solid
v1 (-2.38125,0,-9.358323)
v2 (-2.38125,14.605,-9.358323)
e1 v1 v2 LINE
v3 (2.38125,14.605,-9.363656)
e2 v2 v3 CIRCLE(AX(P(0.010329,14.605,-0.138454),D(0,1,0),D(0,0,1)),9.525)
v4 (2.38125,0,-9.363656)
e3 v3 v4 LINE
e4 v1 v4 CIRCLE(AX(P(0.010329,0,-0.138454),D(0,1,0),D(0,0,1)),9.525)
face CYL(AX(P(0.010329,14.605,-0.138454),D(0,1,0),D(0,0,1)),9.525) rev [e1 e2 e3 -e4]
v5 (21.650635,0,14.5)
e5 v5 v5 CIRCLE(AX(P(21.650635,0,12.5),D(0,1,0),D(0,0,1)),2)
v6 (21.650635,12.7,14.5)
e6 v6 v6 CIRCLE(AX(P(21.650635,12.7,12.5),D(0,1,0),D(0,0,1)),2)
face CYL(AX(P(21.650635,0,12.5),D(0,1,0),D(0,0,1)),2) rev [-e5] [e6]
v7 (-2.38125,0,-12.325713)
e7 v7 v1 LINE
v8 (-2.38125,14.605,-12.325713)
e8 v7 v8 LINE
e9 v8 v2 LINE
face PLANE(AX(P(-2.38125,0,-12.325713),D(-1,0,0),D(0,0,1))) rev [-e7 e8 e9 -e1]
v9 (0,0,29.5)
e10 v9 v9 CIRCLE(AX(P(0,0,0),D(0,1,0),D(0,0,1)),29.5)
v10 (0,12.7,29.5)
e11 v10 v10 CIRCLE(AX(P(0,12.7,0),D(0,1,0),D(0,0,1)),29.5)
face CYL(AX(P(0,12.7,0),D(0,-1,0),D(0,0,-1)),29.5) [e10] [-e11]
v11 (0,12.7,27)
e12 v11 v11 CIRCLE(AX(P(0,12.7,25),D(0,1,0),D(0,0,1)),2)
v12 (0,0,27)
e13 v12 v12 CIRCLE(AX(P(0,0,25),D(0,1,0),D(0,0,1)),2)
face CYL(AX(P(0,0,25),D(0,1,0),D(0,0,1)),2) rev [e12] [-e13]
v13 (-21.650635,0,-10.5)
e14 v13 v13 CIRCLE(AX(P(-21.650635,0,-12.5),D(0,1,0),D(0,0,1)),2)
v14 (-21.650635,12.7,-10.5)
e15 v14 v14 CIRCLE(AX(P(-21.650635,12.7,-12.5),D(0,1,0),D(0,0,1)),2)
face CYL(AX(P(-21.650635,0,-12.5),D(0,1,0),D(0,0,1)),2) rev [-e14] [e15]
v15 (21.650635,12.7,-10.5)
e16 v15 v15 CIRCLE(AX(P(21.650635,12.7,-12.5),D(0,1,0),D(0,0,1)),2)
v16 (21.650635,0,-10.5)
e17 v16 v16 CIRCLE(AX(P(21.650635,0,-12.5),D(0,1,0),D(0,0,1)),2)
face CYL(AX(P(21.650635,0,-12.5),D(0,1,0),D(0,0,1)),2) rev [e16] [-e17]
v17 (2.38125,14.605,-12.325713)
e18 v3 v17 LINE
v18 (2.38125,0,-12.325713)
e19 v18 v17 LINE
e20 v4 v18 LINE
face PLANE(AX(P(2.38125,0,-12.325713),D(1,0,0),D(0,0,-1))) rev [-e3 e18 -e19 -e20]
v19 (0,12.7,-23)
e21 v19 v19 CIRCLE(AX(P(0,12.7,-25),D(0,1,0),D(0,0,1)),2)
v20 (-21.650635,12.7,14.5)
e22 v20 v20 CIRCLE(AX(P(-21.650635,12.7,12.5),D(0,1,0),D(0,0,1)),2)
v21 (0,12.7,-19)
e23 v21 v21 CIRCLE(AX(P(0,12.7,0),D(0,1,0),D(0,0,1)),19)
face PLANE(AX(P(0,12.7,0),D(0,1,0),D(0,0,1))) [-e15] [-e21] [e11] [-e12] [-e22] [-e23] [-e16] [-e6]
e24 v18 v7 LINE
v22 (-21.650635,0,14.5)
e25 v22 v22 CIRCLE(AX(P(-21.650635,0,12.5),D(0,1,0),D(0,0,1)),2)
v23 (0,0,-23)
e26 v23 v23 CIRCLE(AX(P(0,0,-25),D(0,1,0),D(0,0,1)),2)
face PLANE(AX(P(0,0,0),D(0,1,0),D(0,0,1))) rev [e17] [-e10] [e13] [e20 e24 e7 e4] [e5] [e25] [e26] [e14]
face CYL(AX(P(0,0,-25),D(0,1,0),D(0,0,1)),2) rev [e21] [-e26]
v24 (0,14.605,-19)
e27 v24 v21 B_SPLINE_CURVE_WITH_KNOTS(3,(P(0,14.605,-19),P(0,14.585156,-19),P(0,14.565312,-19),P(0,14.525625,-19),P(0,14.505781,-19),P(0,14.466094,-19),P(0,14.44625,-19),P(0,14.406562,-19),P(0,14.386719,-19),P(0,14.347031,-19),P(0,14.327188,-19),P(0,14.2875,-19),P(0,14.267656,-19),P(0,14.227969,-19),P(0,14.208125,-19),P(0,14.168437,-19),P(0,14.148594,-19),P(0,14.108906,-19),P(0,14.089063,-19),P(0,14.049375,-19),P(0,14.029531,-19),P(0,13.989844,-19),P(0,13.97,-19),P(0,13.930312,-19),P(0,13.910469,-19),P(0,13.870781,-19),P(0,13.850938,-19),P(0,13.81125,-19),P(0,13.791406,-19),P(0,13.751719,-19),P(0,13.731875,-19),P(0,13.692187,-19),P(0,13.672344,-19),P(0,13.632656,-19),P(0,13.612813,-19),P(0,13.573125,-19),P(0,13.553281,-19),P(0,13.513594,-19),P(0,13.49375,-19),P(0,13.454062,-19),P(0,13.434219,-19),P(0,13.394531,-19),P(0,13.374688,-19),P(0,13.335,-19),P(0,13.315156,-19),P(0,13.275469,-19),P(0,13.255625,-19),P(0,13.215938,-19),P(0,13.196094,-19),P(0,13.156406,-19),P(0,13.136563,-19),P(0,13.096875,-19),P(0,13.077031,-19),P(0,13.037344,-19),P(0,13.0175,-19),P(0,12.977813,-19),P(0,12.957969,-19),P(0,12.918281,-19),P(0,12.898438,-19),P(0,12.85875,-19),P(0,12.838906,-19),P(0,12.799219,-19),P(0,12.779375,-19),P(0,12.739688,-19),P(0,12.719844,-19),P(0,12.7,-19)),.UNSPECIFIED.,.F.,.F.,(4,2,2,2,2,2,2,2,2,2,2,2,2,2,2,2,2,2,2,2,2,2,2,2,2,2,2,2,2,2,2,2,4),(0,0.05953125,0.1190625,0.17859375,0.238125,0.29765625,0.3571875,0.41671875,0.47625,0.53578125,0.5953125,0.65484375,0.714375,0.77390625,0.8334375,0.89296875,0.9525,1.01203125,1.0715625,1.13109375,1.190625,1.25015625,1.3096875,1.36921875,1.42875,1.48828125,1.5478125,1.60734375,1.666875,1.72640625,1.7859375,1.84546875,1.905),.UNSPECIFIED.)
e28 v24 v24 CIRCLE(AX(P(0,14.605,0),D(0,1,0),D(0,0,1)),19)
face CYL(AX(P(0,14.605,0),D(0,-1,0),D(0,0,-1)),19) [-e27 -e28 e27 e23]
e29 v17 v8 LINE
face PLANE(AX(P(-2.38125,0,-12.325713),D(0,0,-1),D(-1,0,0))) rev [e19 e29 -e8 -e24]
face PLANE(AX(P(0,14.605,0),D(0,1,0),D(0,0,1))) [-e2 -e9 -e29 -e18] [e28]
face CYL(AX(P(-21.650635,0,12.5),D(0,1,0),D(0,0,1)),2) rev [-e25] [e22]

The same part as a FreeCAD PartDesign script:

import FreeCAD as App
import Part
import Sketcher
Q = App.Units.Quantity


def add_polygon(sketch, points):
    """Adds a closed chain of lines whose ends are joined by coincident constraints."""
    first, n = sketch.GeometryCount, len(points)
    for a, b in zip(points, points[1:] + points[:1]):
        sketch.addGeometry(Part.LineSegment(App.Vector(*a, 0), App.Vector(*b, 0)), False)
    for i in range(n):
        sketch.addConstraint(Sketcher.Constraint("Coincident", first + i, 2, first + (i + 1) % n, 1))

doc = App.newDocument("Part")
params = doc.addObject("Spreadsheet::Sheet", "Params")
for row, (alias, value) in enumerate([
    ("pad1_length", "0.5 in"),
    ("pad2_length", "0.075 in"),
    ("sketch3_diameter", "0.75 in"),
    ("hole_diameter", "0.75 in"),
    ("sketch5_width", "0.1875 in"),
], start=1):
    params.set(f"A{row}", alias)
    params.set(f"B{row}", "=" + value)
    params.setAlias(f"B{row}", alias)

body = doc.addObject("PartDesign::Body", "Body")

# Sketch on XZ plane
sketch1 = body.newObject("Sketcher::SketchObject", "Sketch")
sketch1.AttachmentSupport = (doc.getObject("XZ_Plane"), [""])
sketch1.MapMode = "FlatFace"
sketch1.addGeometry(Part.Circle(App.Vector(0, 0, 0), App.Vector(0, 0, 1), 30), False)
sketch1.addConstraint([
    Sketcher.Constraint("Coincident", 0, 3, -1, 1),
    Sketcher.Constraint("Diameter", 0, Q("59 mm")),
])
pad1 = body.newObject("PartDesign::Pad", "Pad")
pad1.Profile = sketch1
pad1.setExpression("Length", "Params.pad1_length")
pad1.Reversed = True

# Sketch on XZ plane
sketch2 = body.newObject("Sketcher::SketchObject", "Sketch001")
sketch2.AttachmentSupport = (doc.getObject("XZ_Plane"), [""])
sketch2.MapMode = "FlatFace"
sketch2.AttachmentOffset = App.Placement(App.Vector(0, 0, -0.5 * 25.4), App.Rotation())
sketch2.addGeometry(Part.Circle(App.Vector(0, 0, 0), App.Vector(0, 0, 1), 19), False)
sketch2.addConstraint([
    Sketcher.Constraint("Coincident", 0, 3, -1, 1),
    Sketcher.Constraint("Diameter", 0, Q("38 mm")),
])
pad2 = body.newObject("PartDesign::Pad", "Pad001")
pad2.Profile = sketch2
pad2.setExpression("Length", "Params.pad2_length")
pad2.Reversed = True

# Sketch on XZ plane
sketch3 = body.newObject("Sketcher::SketchObject", "Sketch002")
sketch3.AttachmentSupport = (doc.getObject("XZ_Plane"), [""])
sketch3.MapMode = "FlatFace"
sketch3.AttachmentOffset = App.Placement(App.Vector(0, 0, -0.575 * 25.4), App.Rotation())
sketch3.addGeometry(Part.Circle(App.Vector(0, 0, 0), App.Vector(0, 0, 1), 10), False)
sketch3.addConstraint([
    Sketcher.Constraint("Diameter", 0, Q("0.75 in")),
    Sketcher.Constraint("DistanceX", -1, 1, 0, 3, Q("0.010329 mm")),
    Sketcher.Constraint("DistanceY", 0, 3, -1, 1, Q("0.138454 mm")),
])
sketch3.setExpression("Constraints[0]", "Params.sketch3_diameter")
doc.recompute()
hole = body.newObject("PartDesign::Hole", "Hole")
hole.Profile = sketch3
hole.ThreadType = "None"
hole.setExpression("Diameter", "Params.hole_diameter")
hole.DepthType = "ThroughAll"
hole.Reversed = True

# Sketch on XZ plane
sketch4 = body.newObject("Sketcher::SketchObject", "Sketch003")
sketch4.AttachmentSupport = (doc.getObject("XZ_Plane"), [""])
sketch4.MapMode = "FlatFace"
sketch4.AttachmentOffset = App.Placement(App.Vector(0, 0, -0.5 * 25.4), App.Rotation())
sketch4.addGeometry([
    Part.Circle(App.Vector(0, -25, 0), App.Vector(0, 0, 1), 2),  # 0
    Part.Circle(App.Vector(21.7, -12.5, 0), App.Vector(0, 0, 1), 2),  # 1
    Part.Circle(App.Vector(21.7, 12.5, 0), App.Vector(0, 0, 1), 2),  # 2
    Part.Circle(App.Vector(0, 25, 0), App.Vector(0, 0, 1), 2),  # 3
    Part.Circle(App.Vector(-21.7, 12.5, 0), App.Vector(0, 0, 1), 2),  # 4
    Part.Circle(App.Vector(-21.7, -12.5, 0), App.Vector(0, 0, 1), 2),  # 5
], False)
sketch4.addConstraint([
    Sketcher.Constraint("Equal", 0, 1),
    Sketcher.Constraint("Equal", 1, 2),
    Sketcher.Constraint("Equal", 2, 3),
    Sketcher.Constraint("Equal", 3, 4),
    Sketcher.Constraint("Equal", 4, 5),
    Sketcher.Constraint("Symmetric", 0, 3, 3, 3, -1, 1),
    Sketcher.Constraint("Symmetric", 1, 3, 4, 3, -1, 1),
    Sketcher.Constraint("Symmetric", 2, 3, 5, 3, -1, 1),
    Sketcher.Constraint("Symmetric", 2, 3, 4, 3, -2),
    Sketcher.Constraint("PointOnObject", 0, 3, -2),
    Sketcher.Constraint("Diameter", 0, Q("4 mm")),
    Sketcher.Constraint("DistanceY", 0, 3, -1, 1, Q("25 mm")),
    Sketcher.Constraint("DistanceY", 1, 3, -1, 1, Q("12.5 mm")),
    Sketcher.Constraint("DistanceX", 4, 3, 2, 3, Q("43.30127 mm")),
])
pocket1 = body.newObject("PartDesign::Pocket", "Pocket")
pocket1.Profile = sketch4
pocket1.Type = "ThroughAll"
pocket1.Midplane = True

# Sketch on XZ plane
sketch5 = body.newObject("Sketcher::SketchObject", "Sketch004")
sketch5.AttachmentSupport = (doc.getObject("XZ_Plane"), [""])
sketch5.MapMode = "FlatFace"
sketch5.AttachmentOffset = App.Placement(App.Vector(0, 0, -0.575 * 25.4), App.Rotation())
add_polygon(sketch5, [(-2.4, -12.3), (-2.4, -7.6), (2.4, -7.6), (2.4, -12.3)])  # lines 0-3
sketch5.addConstraint([
    Sketcher.Constraint("Vertical", 0),
    Sketcher.Constraint("Horizontal", 1),
    Sketcher.Constraint("Vertical", 2),
    Sketcher.Constraint("Horizontal", 3),
    Sketcher.Constraint("Equal", 3, 0),
    Sketcher.Constraint("DistanceX", 1, 1, 1, 2, Q("0.1875 in")),
    Sketcher.Constraint("DistanceX", 0, 2, -1, 1, Q("0.09375 in")),
    Sketcher.Constraint("DistanceY", 0, 2, -1, 1, Q("7.563213 mm")),
])
sketch5.setExpression("Constraints[9]", "Params.sketch5_width")
pocket2 = body.newObject("PartDesign::Pocket", "Pocket001")
pocket2.Profile = sketch5
pocket2.Type = "ThroughAll"
pocket2.Reversed = True

doc.recompute()
